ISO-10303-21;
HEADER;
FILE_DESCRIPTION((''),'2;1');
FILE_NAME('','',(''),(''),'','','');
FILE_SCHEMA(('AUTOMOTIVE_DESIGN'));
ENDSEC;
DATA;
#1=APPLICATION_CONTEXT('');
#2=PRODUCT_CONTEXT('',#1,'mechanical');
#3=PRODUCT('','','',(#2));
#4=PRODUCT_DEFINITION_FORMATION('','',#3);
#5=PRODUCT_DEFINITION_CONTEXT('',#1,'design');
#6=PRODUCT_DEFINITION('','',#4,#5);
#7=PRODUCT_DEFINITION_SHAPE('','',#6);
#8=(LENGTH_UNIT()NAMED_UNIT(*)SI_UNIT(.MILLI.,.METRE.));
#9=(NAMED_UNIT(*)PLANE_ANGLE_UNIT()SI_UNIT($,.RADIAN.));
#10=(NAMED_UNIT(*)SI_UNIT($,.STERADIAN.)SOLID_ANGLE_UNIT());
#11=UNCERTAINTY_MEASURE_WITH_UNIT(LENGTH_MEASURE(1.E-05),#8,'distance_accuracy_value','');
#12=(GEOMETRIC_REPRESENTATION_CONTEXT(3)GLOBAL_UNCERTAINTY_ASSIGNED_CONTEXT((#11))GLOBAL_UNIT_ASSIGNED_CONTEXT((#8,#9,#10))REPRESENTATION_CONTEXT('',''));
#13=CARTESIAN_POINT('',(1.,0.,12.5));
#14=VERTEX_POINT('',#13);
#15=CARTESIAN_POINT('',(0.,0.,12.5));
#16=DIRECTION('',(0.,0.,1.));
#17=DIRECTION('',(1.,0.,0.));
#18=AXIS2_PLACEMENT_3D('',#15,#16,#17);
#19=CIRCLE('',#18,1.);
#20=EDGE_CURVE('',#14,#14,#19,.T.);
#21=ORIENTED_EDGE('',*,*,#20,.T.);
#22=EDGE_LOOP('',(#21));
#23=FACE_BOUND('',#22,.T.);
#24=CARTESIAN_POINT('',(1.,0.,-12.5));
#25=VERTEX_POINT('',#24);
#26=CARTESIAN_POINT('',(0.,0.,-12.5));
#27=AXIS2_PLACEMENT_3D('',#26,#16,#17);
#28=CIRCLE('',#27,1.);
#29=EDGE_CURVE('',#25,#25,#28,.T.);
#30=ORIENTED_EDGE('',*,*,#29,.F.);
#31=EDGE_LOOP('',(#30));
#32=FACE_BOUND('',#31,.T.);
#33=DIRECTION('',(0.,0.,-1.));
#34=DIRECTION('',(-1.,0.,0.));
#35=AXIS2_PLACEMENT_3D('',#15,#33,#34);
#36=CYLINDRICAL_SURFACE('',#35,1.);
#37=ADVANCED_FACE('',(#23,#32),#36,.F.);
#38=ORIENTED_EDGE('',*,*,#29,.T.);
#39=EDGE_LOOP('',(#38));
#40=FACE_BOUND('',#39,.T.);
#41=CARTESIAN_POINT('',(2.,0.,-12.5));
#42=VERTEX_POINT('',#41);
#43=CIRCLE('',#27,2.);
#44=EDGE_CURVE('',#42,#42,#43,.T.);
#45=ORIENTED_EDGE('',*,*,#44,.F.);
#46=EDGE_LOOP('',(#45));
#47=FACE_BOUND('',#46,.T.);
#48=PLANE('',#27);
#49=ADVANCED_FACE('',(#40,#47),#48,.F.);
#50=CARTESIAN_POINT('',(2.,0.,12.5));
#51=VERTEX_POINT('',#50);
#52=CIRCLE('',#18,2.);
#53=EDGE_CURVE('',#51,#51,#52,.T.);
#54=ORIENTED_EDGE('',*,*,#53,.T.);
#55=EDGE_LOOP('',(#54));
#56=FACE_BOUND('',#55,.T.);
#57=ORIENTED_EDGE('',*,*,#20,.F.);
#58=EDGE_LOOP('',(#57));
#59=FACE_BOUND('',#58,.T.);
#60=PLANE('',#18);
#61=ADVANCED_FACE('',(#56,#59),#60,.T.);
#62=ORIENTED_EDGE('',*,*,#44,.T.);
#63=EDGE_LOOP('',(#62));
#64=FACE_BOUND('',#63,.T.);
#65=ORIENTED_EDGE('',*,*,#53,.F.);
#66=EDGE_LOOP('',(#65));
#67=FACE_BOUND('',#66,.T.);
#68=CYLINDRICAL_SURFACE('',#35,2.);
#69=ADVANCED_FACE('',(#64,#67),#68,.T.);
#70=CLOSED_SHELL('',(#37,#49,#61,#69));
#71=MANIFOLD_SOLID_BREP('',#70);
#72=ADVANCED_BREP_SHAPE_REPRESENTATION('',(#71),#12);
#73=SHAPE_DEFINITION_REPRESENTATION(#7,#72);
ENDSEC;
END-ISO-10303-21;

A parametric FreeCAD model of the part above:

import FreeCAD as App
import Part
import Sketcher
Q = App.Units.Quantity

doc = App.newDocument("Part")
body = doc.addObject("PartDesign::Body", "Body")

# Sketch on XY plane
sketch1 = body.newObject("Sketcher::SketchObject", "Sketch")
sketch1.AttachmentSupport = (doc.getObject("XY_Plane"), [""])
sketch1.MapMode = "FlatFace"
sketch1.addGeometry([
    Part.Circle(App.Vector(0, 0, 0), App.Vector(0, 0, 1), 2),
    Part.Circle(App.Vector(0, 0, 0), App.Vector(0, 0, 1), 1),
], False)
sketch1.addConstraint([
    Sketcher.Constraint("Coincident", 0, 3, -1, 1),
    Sketcher.Constraint("Coincident", 1, 3, -1, 1),
    Sketcher.Constraint("Diameter", 0, Q("4 mm")),
    Sketcher.Constraint("Diameter", 1, Q("2 mm")),
])
pad1 = body.newObject("PartDesign::Pad", "Pad")
pad1.Profile = sketch1
pad1.Length = 25
pad1.Midplane = True

doc.recompute()
